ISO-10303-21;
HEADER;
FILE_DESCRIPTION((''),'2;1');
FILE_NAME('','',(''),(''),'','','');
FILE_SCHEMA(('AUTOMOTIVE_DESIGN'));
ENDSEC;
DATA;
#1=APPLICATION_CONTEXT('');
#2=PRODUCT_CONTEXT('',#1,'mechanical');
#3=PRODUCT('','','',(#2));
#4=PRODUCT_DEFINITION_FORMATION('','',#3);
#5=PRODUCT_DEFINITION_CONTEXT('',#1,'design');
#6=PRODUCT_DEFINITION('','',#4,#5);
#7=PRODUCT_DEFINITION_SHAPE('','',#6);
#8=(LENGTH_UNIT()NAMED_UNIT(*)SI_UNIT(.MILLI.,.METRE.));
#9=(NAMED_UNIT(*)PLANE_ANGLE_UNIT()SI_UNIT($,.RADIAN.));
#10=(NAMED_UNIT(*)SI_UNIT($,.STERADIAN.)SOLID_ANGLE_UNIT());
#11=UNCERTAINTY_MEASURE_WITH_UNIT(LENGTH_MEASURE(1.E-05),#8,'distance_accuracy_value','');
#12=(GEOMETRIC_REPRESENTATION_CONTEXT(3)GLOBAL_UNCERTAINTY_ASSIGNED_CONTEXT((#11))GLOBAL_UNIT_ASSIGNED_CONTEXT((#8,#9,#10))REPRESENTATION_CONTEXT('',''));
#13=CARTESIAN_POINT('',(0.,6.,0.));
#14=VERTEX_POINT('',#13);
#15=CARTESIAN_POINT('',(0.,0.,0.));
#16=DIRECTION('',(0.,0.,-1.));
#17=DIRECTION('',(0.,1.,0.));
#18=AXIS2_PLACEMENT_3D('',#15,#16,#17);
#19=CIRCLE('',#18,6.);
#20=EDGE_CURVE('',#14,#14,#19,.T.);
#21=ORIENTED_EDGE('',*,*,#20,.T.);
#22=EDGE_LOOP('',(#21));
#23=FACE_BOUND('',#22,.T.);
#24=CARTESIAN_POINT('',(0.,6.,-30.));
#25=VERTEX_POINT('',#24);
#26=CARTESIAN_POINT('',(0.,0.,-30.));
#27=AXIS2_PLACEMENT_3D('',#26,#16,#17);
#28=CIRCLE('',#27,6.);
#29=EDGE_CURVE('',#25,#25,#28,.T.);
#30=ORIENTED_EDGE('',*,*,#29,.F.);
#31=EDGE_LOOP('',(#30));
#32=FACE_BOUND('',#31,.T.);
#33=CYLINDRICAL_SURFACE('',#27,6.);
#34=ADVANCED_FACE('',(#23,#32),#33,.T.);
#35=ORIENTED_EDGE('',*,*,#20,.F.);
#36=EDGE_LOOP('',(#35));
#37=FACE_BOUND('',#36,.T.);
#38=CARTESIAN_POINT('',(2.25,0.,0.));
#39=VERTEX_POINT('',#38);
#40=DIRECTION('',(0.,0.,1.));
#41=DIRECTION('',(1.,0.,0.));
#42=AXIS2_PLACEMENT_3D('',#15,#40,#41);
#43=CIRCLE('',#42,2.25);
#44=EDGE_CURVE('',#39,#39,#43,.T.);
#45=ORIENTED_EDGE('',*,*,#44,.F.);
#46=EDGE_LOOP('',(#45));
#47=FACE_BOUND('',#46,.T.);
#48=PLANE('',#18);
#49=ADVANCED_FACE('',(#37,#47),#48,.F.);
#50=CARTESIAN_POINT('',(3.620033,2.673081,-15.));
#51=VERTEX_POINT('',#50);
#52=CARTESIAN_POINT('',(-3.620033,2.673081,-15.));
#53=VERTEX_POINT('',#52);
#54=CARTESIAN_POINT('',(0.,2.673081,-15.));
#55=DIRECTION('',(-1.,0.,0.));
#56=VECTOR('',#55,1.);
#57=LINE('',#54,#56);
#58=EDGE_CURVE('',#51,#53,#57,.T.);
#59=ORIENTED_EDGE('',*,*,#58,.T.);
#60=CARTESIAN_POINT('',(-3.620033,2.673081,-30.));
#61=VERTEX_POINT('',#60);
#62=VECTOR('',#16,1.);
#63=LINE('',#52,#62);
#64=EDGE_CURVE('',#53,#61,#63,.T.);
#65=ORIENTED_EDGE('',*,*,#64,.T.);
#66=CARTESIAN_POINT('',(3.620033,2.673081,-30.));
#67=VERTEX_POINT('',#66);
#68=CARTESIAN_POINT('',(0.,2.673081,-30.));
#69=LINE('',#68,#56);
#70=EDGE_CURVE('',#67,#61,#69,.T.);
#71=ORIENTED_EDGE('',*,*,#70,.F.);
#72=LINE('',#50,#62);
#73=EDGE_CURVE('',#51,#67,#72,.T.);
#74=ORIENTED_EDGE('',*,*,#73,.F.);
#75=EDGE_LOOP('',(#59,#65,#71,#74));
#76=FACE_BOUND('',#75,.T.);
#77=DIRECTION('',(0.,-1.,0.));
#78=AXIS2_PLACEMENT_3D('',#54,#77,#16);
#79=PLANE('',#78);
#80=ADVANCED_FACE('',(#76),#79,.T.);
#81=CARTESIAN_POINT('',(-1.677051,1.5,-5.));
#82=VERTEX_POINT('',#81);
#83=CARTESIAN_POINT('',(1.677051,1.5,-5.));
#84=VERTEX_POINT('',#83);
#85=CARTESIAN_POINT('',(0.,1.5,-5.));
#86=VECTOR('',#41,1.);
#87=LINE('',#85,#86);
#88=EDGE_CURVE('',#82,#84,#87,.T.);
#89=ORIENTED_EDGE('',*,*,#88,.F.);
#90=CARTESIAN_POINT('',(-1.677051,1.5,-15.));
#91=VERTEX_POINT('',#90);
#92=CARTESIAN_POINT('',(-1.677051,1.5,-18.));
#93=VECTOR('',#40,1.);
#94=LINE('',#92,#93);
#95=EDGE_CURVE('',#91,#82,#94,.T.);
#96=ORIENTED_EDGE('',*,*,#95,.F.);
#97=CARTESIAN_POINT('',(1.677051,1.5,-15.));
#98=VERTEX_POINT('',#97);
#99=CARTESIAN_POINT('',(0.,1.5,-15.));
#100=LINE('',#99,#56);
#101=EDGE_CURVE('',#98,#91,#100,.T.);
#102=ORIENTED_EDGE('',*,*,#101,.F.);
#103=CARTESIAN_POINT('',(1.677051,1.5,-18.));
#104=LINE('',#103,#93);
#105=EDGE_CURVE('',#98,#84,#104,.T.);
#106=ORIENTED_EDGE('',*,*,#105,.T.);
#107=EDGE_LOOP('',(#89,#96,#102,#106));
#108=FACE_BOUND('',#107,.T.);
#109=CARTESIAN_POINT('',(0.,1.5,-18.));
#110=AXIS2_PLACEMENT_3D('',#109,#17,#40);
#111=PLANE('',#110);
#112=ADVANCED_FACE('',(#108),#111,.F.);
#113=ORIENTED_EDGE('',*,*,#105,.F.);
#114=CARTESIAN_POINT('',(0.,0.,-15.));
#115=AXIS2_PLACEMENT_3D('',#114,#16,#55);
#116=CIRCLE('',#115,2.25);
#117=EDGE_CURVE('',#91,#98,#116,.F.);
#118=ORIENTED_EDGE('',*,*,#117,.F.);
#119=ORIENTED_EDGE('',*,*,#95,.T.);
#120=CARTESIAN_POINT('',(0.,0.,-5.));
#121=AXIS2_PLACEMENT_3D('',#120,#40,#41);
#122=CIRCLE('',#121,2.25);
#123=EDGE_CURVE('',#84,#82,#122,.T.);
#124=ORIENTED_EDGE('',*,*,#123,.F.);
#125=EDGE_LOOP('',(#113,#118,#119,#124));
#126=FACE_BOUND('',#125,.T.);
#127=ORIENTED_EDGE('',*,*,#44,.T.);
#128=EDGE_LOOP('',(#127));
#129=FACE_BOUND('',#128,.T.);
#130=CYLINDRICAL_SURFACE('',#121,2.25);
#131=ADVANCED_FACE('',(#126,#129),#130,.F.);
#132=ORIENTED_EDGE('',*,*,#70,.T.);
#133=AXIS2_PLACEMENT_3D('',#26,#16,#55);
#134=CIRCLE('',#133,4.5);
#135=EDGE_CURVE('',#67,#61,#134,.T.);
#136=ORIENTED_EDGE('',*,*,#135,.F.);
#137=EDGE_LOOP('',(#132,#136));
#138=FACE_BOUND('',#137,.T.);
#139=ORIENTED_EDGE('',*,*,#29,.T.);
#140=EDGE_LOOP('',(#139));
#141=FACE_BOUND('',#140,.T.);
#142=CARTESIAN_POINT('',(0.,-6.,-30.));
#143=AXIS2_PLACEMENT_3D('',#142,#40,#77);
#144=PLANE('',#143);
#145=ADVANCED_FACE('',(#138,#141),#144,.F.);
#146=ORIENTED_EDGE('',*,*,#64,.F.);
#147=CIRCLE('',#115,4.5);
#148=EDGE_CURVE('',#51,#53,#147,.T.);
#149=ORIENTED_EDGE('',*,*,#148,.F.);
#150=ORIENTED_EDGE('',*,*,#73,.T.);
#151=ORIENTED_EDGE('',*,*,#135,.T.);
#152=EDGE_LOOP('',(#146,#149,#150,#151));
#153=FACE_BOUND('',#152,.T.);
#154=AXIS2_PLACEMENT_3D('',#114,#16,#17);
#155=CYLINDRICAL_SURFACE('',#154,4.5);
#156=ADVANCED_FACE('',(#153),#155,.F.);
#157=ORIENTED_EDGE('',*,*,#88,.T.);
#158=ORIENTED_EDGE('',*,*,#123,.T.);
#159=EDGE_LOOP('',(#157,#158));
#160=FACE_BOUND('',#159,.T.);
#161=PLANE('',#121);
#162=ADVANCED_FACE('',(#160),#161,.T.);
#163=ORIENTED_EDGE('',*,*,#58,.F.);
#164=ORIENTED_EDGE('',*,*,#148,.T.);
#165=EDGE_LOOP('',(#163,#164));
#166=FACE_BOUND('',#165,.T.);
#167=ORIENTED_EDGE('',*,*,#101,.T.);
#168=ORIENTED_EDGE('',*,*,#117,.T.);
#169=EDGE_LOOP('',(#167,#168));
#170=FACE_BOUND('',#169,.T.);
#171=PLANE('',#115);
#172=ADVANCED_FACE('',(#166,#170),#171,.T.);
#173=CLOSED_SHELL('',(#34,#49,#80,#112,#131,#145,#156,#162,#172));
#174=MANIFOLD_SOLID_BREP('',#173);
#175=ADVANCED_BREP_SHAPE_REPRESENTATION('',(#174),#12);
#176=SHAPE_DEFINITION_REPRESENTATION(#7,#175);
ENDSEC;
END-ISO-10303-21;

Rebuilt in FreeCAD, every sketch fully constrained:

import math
import FreeCAD as App
import Part
import Sketcher

V = App.Vector

doc = App.newDocument("Part")
body = doc.addObject("PartDesign::Body", "Body")

# Sketch on YZ plane
sketch1 = body.newObject("Sketcher::SketchObject", "Sketch")
sketch1.AttachmentSupport = (doc.getObject("YZ_Plane"), [""])
sketch1.MapMode = "FlatFace"
sketch1.addGeometry([
    Part.LineSegment(V(0, 0, 0), V(-6, 0, 0)),
    Part.LineSegment(V(-6, 0, 0), V(-6, -30, 0)),
    Part.LineSegment(V(-6, -30, 0), V(0, -30, 0)),
    Part.LineSegment(V(0, -30, 0), V(0, 0, 0)),
], False)
sketch1.addConstraint([
    Sketcher.Constraint("Coincident", 0, 2, 1, 1),
    Sketcher.Constraint("Coincident", 1, 2, 2, 1),
    Sketcher.Constraint("Coincident", 2, 2, 3, 1),
    Sketcher.Constraint("Coincident", 3, 2, 0, 1),
    Sketcher.Constraint("Horizontal", 0),
    Sketcher.Constraint("Vertical", 1),
    Sketcher.Constraint("Horizontal", 2),
    Sketcher.Constraint("Vertical", 3),
    Sketcher.Constraint("Coincident", 3, 2, -1, 1),
    Sketcher.Constraint("DistanceX", 0, 2, 0, 1, 6.0),
    Sketcher.Constraint("DistanceY", 1, 2, 1, 1, 30.0),
])
revolution = body.newObject("PartDesign::Revolution", "Revolution")
revolution.Profile = sketch1
revolution.ReferenceAxis = (sketch1, ["V_Axis"])
revolution.Angle = 360

# Sketch on XY plane
sketch2 = body.newObject("Sketcher::SketchObject", "Sketch001")
sketch2.AttachmentSupport = (doc.getObject("XY_Plane"), [""])
sketch2.MapMode = "FlatFace"
sketch2.addGeometry([
    Part.LineSegment(V(-1.7, 1.5, 0), V(1.7, 1.5, 0)),
    Part.ArcOfCircle(Part.Circle(V(0, 0, 0), V(0, 0, 1), 2.2), math.radians(42), math.radians(138)),
], False)
sketch2.addConstraint([
    Sketcher.Constraint("Coincident", 0, 1, 1, 2),
    Sketcher.Constraint("Coincident", 1, 1, 0, 2),
    Sketcher.Constraint("Horizontal", 0),
    Sketcher.Constraint("Coincident", 1, 3, -1, 1),
    Sketcher.Constraint("Radius", 1, 2.25),
    Sketcher.Constraint("DistanceY", -1, 1, 0, 1, 1.5),
])
pocket1 = body.newObject("PartDesign::Pocket", "Pocket")
pocket1.Profile = sketch2
pocket1.Length = 5

# Sketch on XY plane
sketch3 = body.newObject("Sketcher::SketchObject", "Sketch002")
sketch3.AttachmentSupport = (doc.getObject("XY_Plane"), [""])
sketch3.MapMode = "FlatFace"
sketch3.addGeometry([
    Part.LineSegment(V(1.7, 1.5, 0), V(-1.7, 1.5, 0)),
    Part.ArcOfCircle(Part.Circle(V(0, 0, 0), V(0, 0, 1), 2.2), math.radians(138), math.radians(402)),
], False)
sketch3.addConstraint([
    Sketcher.Constraint("Coincident", 0, 1, 1, 2),
    Sketcher.Constraint("Coincident", 1, 1, 0, 2),
    Sketcher.Constraint("Horizontal", 0),
    Sketcher.Constraint("Coincident", 1, 3, -1, 1),
    Sketcher.Constraint("Radius", 1, 2.25),
    Sketcher.Constraint("DistanceY", -1, 1, 0, 1, 1.5),
])
pocket2 = body.newObject("PartDesign::Pocket", "Pocket001")
pocket2.Profile = sketch3
pocket2.Length = 18

# Sketch on XY plane
sketch4 = body.newObject("Sketcher::SketchObject", "Sketch003")
sketch4.AttachmentSupport = (doc.getObject("XY_Plane"), [""])
sketch4.MapMode = "FlatFace"
sketch4.AttachmentOffset = App.Placement(V(0, 0, -30), App.Rotation())
sketch4.addGeometry([
    Part.LineSegment(V(-3.6, 2.7, 0), V(3.6, 2.7, 0)),
    Part.ArcOfCircle(Part.Circle(V(0, 0, 0), V(0, 0, 1), 4.5), math.radians(180), math.radians(396)),
    Part.ArcOfCircle(Part.Circle(V(0, 0, 0), V(0, 0, 1), 4.5), math.radians(144), math.radians(180)),
], False)
sketch4.addConstraint([
    Sketcher.Constraint("Coincident", 0, 2, 1, 2),
    Sketcher.Constraint("Tangent", 1, 1, 2, 2),
    Sketcher.Constraint("Coincident", 2, 1, 0, 1),
    Sketcher.Constraint("Horizontal", 0),
    Sketcher.Constraint("Coincident", 1, 3, -1, 1),
    Sketcher.Constraint("Equal", 1, 2),
    Sketcher.Constraint("PointOnObject", 1, 1, -1),
    Sketcher.Constraint("Radius", 1, 4.5),
    Sketcher.Constraint("DistanceX", 0, 1, 0, 2, 7.240065),
])
pocket3 = body.newObject("PartDesign::Pocket", "Pocket002")
pocket3.Profile = sketch4
pocket3.Length = 15
pocket3.Reversed = True

doc.recompute()
